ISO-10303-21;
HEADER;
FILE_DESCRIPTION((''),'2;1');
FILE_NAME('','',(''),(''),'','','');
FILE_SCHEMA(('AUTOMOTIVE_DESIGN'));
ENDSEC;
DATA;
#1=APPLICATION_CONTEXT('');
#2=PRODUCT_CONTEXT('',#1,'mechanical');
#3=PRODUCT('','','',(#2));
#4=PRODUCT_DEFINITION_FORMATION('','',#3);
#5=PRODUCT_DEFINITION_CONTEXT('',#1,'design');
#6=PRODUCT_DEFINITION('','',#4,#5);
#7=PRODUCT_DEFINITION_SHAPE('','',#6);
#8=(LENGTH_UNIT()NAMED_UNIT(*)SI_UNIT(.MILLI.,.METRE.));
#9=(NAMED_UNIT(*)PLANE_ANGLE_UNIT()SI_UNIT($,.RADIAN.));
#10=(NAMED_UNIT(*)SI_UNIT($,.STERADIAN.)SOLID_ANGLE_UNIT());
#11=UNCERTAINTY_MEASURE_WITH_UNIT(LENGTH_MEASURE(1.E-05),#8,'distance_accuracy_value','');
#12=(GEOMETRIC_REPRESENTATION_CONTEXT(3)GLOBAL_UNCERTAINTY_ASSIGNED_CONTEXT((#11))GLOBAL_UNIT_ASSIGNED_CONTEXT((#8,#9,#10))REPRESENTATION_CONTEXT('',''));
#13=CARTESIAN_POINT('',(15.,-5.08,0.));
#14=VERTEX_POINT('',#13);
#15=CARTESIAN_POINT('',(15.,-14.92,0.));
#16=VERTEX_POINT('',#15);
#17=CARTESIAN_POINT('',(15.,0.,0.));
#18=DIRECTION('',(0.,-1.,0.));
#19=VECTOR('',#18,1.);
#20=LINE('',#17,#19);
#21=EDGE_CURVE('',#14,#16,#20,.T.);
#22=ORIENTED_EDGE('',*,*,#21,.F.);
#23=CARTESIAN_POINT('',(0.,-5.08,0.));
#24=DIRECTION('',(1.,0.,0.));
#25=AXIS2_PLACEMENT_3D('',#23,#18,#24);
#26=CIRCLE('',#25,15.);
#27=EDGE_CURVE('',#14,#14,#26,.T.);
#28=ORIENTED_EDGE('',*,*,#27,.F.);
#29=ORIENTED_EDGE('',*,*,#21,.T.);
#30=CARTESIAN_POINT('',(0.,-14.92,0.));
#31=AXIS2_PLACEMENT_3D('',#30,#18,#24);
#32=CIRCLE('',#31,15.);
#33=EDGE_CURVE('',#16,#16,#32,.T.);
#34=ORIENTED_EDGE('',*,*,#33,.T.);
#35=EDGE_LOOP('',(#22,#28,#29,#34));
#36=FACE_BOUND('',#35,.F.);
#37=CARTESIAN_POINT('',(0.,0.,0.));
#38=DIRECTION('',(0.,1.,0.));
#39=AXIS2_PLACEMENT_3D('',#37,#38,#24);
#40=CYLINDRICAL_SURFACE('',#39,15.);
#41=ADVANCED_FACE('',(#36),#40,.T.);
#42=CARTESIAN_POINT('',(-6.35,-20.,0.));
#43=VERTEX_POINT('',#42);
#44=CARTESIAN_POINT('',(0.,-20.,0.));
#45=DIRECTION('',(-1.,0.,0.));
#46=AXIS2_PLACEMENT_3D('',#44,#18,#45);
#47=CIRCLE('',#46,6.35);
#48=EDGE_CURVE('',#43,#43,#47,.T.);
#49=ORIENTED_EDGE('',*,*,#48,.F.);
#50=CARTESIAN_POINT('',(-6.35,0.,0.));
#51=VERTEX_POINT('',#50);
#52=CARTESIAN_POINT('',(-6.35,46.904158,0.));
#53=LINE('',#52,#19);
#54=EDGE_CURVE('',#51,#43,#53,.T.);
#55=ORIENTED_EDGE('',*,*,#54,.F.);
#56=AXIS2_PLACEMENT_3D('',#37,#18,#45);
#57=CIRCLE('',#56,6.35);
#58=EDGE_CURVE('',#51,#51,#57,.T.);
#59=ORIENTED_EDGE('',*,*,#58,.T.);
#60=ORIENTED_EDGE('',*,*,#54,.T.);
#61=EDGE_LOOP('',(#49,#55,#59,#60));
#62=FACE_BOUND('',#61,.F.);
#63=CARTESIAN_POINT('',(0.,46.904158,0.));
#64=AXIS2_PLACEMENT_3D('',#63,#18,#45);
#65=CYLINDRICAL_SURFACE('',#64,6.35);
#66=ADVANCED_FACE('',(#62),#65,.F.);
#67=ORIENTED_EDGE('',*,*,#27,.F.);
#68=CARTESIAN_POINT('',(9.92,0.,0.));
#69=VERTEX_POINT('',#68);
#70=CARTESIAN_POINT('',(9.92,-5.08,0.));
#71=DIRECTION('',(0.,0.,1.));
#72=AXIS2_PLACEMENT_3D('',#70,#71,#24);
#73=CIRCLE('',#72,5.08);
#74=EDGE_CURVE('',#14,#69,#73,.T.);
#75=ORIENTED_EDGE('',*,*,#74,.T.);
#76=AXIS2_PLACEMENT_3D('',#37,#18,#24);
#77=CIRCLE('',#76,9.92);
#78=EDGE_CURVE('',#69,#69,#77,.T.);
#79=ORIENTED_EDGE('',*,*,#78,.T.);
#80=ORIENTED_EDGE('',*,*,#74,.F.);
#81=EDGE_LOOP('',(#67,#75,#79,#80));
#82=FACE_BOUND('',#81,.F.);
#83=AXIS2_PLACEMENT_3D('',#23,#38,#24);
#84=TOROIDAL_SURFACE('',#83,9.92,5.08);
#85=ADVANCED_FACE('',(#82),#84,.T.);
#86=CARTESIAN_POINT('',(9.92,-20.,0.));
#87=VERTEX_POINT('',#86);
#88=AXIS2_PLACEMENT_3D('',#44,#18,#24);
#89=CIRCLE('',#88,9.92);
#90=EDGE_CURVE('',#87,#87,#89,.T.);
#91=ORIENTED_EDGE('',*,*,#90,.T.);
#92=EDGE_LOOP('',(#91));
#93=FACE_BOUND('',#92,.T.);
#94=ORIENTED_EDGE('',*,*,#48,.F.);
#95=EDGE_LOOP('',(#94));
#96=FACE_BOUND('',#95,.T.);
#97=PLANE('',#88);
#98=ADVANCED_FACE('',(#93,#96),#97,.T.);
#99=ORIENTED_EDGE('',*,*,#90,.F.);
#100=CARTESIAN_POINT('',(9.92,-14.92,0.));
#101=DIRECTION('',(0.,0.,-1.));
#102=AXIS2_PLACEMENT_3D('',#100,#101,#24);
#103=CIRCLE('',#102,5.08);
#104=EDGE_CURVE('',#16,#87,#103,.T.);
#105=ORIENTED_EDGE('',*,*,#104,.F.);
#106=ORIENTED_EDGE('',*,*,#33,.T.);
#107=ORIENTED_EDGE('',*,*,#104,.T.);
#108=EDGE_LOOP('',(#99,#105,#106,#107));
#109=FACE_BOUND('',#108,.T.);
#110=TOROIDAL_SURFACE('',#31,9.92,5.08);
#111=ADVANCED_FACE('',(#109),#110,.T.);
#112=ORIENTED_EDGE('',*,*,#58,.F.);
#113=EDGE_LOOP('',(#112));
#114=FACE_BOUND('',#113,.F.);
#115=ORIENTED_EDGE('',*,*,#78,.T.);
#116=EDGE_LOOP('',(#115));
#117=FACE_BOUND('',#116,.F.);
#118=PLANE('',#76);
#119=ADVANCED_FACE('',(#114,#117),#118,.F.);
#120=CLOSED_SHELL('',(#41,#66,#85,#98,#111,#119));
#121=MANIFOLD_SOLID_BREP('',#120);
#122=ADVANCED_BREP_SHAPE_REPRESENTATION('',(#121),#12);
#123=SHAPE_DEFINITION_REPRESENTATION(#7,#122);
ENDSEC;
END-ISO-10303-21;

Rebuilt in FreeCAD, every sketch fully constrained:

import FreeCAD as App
import Part
import Sketcher

V = App.Vector


def edges_at(feature, points):
    """Names of the edges that pass closest to the given points."""
    edges = feature.Shape.Edges
    near = lambda p: min(range(len(edges)), key=lambda i: edges[i].distToShape(Part.Vertex(*p))[0])
    return sorted({f"Edge{near(p) + 1}" for p in points})

doc = App.newDocument("Part")
body = doc.addObject("PartDesign::Body", "Body")

# Sketch on XZ plane
sketch1 = doc.addObject("Sketcher::SketchObject", "Sketch")
body.addObject(sketch1)
sketch1.AttachmentSupport = (doc.XZ_Plane, [""])
sketch1.MapMode = "FlatFace"
sketch1.addGeometry(Part.Circle(V(0, 0, 0), V(0, 0, 1), 15), False)
sketch1.addConstraint([
    Sketcher.Constraint("Coincident", 0, 3, -1, 1),
    Sketcher.Constraint("Diameter", 0, 30.0),
])
pad1 = doc.addObject("PartDesign::Pad", "Pad")
body.addObject(pad1)
pad1.Profile = sketch1
pad1.Length = 20
doc.recompute()

fillet = doc.addObject("PartDesign::Fillet", "Fillet")
body.addObject(fillet)
fillet.Base = (pad1, edges_at(pad1, [(-15, -20, 0)]))
fillet.Radius = 5.08
doc.recompute()

fillet2 = doc.addObject("PartDesign::Fillet", "Fillet001")
body.addObject(fillet2)
fillet2.Base = (fillet, edges_at(fillet, [(15, -7.46, 0), (-15, -14.92, 0), (-15, 0, 0)]))
fillet2.Radius = 5.08

# Sketch on XZ plane
sketch2 = doc.addObject("Sketcher::SketchObject", "Sketch001")
body.addObject(sketch2)
sketch2.AttachmentSupport = (doc.XZ_Plane, [""])
sketch2.MapMode = "FlatFace"
sketch2.addGeometry(Part.Circle(V(0, 0, 0), V(0, 0, 1), 6), False)
sketch2.addConstraint([
    Sketcher.Constraint("Coincident", 0, 3, -1, 1),
    Sketcher.Constraint("Diameter", 0, 12.7),
])
doc.recompute()
hole = doc.addObject("PartDesign::Hole", "Hole")
body.addObject(hole)
hole.Profile = sketch2
hole.ThreadType = "None"
hole.Diameter = 12.7
hole.DepthType = "ThroughAll"
hole.Reversed = True

doc.recompute()
